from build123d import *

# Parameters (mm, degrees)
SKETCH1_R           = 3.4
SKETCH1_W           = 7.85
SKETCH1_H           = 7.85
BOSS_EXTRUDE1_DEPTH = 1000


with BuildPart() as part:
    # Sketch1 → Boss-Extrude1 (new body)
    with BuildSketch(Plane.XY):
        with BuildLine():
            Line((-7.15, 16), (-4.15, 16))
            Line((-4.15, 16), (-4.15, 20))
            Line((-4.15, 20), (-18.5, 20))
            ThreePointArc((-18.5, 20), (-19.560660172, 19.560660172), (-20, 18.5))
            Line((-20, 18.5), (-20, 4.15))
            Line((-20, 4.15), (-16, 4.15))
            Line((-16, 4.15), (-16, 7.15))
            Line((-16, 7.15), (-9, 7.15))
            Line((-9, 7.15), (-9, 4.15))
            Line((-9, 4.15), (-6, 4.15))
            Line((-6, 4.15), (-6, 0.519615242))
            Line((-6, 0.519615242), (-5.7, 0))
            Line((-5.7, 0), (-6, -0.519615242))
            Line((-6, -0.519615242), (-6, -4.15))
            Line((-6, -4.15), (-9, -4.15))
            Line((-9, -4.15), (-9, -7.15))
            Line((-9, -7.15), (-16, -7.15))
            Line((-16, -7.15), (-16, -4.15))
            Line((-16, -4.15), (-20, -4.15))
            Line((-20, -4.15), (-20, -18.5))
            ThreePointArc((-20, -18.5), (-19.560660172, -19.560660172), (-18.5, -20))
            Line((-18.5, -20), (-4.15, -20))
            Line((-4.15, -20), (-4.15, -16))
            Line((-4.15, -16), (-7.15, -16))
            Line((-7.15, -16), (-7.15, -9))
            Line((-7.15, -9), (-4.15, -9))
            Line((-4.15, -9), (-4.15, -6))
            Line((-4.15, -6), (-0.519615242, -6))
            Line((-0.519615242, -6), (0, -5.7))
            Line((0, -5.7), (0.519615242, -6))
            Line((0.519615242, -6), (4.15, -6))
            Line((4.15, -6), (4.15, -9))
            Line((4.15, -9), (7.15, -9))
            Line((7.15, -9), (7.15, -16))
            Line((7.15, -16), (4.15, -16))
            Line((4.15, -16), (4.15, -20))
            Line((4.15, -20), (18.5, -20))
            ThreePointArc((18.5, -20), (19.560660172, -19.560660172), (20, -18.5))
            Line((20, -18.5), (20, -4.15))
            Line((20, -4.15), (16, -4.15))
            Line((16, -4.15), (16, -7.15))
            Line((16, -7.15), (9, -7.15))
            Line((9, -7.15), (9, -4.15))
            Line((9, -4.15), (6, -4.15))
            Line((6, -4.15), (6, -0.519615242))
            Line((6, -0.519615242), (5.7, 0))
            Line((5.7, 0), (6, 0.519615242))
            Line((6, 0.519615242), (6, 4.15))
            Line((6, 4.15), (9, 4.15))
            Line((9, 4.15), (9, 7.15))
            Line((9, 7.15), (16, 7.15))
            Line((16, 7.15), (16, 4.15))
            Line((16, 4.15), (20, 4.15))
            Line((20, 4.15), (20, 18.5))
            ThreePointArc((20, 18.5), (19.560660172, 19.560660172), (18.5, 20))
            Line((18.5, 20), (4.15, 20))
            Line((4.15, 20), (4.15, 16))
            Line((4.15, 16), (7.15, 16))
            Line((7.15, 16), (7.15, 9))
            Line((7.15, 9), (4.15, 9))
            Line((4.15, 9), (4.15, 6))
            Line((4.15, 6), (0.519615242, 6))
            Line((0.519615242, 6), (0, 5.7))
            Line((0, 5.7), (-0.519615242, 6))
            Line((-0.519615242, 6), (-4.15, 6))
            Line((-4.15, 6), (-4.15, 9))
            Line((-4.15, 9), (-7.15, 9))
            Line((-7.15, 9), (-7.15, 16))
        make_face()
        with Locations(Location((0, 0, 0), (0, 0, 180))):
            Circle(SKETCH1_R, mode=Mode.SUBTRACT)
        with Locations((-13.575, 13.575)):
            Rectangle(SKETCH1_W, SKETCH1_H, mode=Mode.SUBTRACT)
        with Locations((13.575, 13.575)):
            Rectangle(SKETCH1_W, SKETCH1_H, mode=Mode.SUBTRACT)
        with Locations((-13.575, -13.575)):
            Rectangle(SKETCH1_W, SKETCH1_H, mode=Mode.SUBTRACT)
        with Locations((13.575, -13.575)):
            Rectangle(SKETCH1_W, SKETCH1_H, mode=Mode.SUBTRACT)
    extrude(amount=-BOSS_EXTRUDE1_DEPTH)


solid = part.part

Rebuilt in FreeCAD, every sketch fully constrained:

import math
import FreeCAD as App
import Part
import Sketcher

V = App.Vector
Q = App.Units.Quantity

doc = App.newDocument("Part")
body = doc.addObject("PartDesign::Body", "Body")

sketch1 = doc.addObject("Sketcher::SketchObject", "Sketch")
body.addObject(sketch1)
sketch1.AttachmentSupport = (doc.XY_Plane, [""])
sketch1.MapMode = "FlatFace"
sketch1.addGeometry(Part.LineSegment(V(-7.15, 16, 0), V(-4.15, 16, 0)), False)
sketch1.addGeometry(Part.LineSegment(V(-4.15, 16, 0), V(-4.15, 20, 0)), False)
sketch1.addGeometry(Part.LineSegment(V(-4.15, 20, 0), V(-18.5, 20, 0)), False)
sketch1.addGeometry(Part.ArcOfCircle(Part.Circle(V(-18.5, 18.5, 0), V(0, 0, 1), 1.5), math.radians(90), math.radians(180)), False)
sketch1.addGeometry(Part.LineSegment(V(-20, 18.5, 0), V(-20, 4.15, 0)), False)
sketch1.addGeometry(Part.LineSegment(V(-20, 4.15, 0), V(-16, 4.15, 0)), False)
sketch1.addGeometry(Part.LineSegment(V(-16, 4.15, 0), V(-16, 7.15, 0)), False)
sketch1.addGeometry(Part.LineSegment(V(-16, 7.15, 0), V(-9, 7.15, 0)), False)
sketch1.addGeometry(Part.LineSegment(V(-9, 7.15, 0), V(-9, 4.15, 0)), False)
sketch1.addGeometry(Part.LineSegment(V(-9, 4.15, 0), V(-6, 4.15, 0)), False)
sketch1.addGeometry(Part.LineSegment(V(-6, 4.15, 0), V(-6, 0.519615, 0)), False)
sketch1.addGeometry(Part.LineSegment(V(-6, 0.519615, 0), V(-5.7, 0, 0)), False)
sketch1.addGeometry(Part.LineSegment(V(-5.7, 0, 0), V(-6, -0.519615, 0)), False)
sketch1.addGeometry(Part.LineSegment(V(-6, -0.519615, 0), V(-6, -4.15, 0)), False)
sketch1.addGeometry(Part.LineSegment(V(-6, -4.15, 0), V(-9, -4.15, 0)), False)
sketch1.addGeometry(Part.LineSegment(V(-9, -4.15, 0), V(-9, -7.15, 0)), False)
sketch1.addGeometry(Part.LineSegment(V(-9, -7.15, 0), V(-16, -7.15, 0)), False)
sketch1.addGeometry(Part.LineSegment(V(-16, -7.15, 0), V(-16, -4.15, 0)), False)
sketch1.addGeometry(Part.LineSegment(V(-16, -4.15, 0), V(-20, -4.15, 0)), False)
sketch1.addGeometry(Part.LineSegment(V(-20, -4.15, 0), V(-20, -18.5, 0)), False)
sketch1.addGeometry(Part.ArcOfCircle(Part.Circle(V(-18.5, -18.5, 0), V(0, 0, 1), 1.5), math.radians(180), math.radians(270)), False)
sketch1.addGeometry(Part.LineSegment(V(-18.5, -20, 0), V(-4.15, -20, 0)), False)
sketch1.addGeometry(Part.LineSegment(V(-4.15, -20, 0), V(-4.15, -16, 0)), False)
sketch1.addGeometry(Part.LineSegment(V(-4.15, -16, 0), V(-7.15, -16, 0)), False)
sketch1.addGeometry(Part.LineSegment(V(-7.15, -16, 0), V(-7.15, -9, 0)), False)
sketch1.addGeometry(Part.LineSegment(V(-7.15, -9, 0), V(-4.15, -9, 0)), False)
sketch1.addGeometry(Part.LineSegment(V(-4.15, -9, 0), V(-4.15, -6, 0)), False)
sketch1.addGeometry(Part.LineSegment(V(-4.15, -6, 0), V(-0.519615, -6, 0)), False)
sketch1.addGeometry(Part.LineSegment(V(-0.519615, -6, 0), V(0, -5.7, 0)), False)
sketch1.addGeometry(Part.LineSegment(V(0, -5.7, 0), V(0.519615, -6, 0)), False)
sketch1.addGeometry(Part.LineSegment(V(0.519615, -6, 0), V(4.15, -6, 0)), False)
sketch1.addGeometry(Part.LineSegment(V(4.15, -6, 0), V(4.15, -9, 0)), False)
sketch1.addGeometry(Part.LineSegment(V(4.15, -9, 0), V(7.15, -9, 0)), False)
sketch1.addGeometry(Part.LineSegment(V(7.15, -9, 0), V(7.15, -16, 0)), False)
sketch1.addGeometry(Part.LineSegment(V(7.15, -16, 0), V(4.15, -16, 0)), False)
sketch1.addGeometry(Part.LineSegment(V(4.15, -16, 0), V(4.15, -20, 0)), False)
sketch1.addGeometry(Part.LineSegment(V(4.15, -20, 0), V(18.5, -20, 0)), False)
sketch1.addGeometry(Part.ArcOfCircle(Part.Circle(V(18.5, -18.5, 0), V(0, 0, 1), 1.5), math.radians(-90), math.radians(0)), False)
sketch1.addGeometry(Part.LineSegment(V(20, -18.5, 0), V(20, -4.15, 0)), False)
sketch1.addGeometry(Part.LineSegment(V(20, -4.15, 0), V(16, -4.15, 0)), False)
sketch1.addGeometry(Part.LineSegment(V(16, -4.15, 0), V(16, -7.15, 0)), False)
sketch1.addGeometry(Part.LineSegment(V(16, -7.15, 0), V(9, -7.15, 0)), False)
sketch1.addGeometry(Part.LineSegment(V(9, -7.15, 0), V(9, -4.15, 0)), False)
sketch1.addGeometry(Part.LineSegment(V(9, -4.15, 0), V(6, -4.15, 0)), False)
sketch1.addGeometry(Part.LineSegment(V(6, -4.15, 0), V(6, -0.519615, 0)), False)
sketch1.addGeometry(Part.LineSegment(V(6, -0.519615, 0), V(5.7, 0, 0)), False)
sketch1.addGeometry(Part.LineSegment(V(5.7, 0, 0), V(6, 0.519615, 0)), False)
sketch1.addGeometry(Part.LineSegment(V(6, 0.519615, 0), V(6, 4.15, 0)), False)
sketch1.addGeometry(Part.LineSegment(V(6, 4.15, 0), V(9, 4.15, 0)), False)
sketch1.addGeometry(Part.LineSegment(V(9, 4.15, 0), V(9, 7.15, 0)), False)
sketch1.addGeometry(Part.LineSegment(V(9, 7.15, 0), V(16, 7.15, 0)), False)
sketch1.addGeometry(Part.LineSegment(V(16, 7.15, 0), V(16, 4.15, 0)), False)
sketch1.addGeometry(Part.LineSegment(V(16, 4.15, 0), V(20, 4.15, 0)), False)
sketch1.addGeometry(Part.LineSegment(V(20, 4.15, 0), V(20, 18.5, 0)), False)
sketch1.addGeometry(Part.ArcOfCircle(Part.Circle(V(18.5, 18.5, 0), V(0, 0, 1), 1.5), math.radians(0), math.radians(90)), False)
sketch1.addGeometry(Part.LineSegment(V(18.5, 20, 0), V(4.15, 20, 0)), False)
sketch1.addGeometry(Part.LineSegment(V(4.15, 20, 0), V(4.15, 16, 0)), False)
sketch1.addGeometry(Part.LineSegment(V(4.15, 16, 0), V(7.15, 16, 0)), False)
sketch1.addGeometry(Part.LineSegment(V(7.15, 16, 0), V(7.15, 9, 0)), False)
sketch1.addGeometry(Part.LineSegment(V(7.15, 9, 0), V(4.15, 9, 0)), False)
sketch1.addGeometry(Part.LineSegment(V(4.15, 9, 0), V(4.15, 6, 0)), False)
sketch1.addGeometry(Part.LineSegment(V(4.15, 6, 0), V(0.519615, 6, 0)), False)
sketch1.addGeometry(Part.LineSegment(V(0.519615, 6, 0), V(0, 5.7, 0)), False)
sketch1.addGeometry(Part.LineSegment(V(0, 5.7, 0), V(-0.519615, 6, 0)), False)
sketch1.addGeometry(Part.LineSegment(V(-0.519615, 6, 0), V(-4.15, 6, 0)), False)
sketch1.addGeometry(Part.LineSegment(V(-4.15, 6, 0), V(-4.15, 9, 0)), False)
sketch1.addGeometry(Part.LineSegment(V(-4.15, 9, 0), V(-7.15, 9, 0)), False)
sketch1.addGeometry(Part.LineSegment(V(-7.15, 9, 0), V(-7.15, 16, 0)), False)
sketch1.addGeometry(Part.LineSegment(V(-9.65, -17.5, 0), V(-17.5, -17.5, 0)), False)
sketch1.addGeometry(Part.LineSegment(V(-17.5, -17.5, 0), V(-17.5, -9.65, 0)), False)
sketch1.addGeometry(Part.LineSegment(V(-17.5, -9.65, 0), V(-9.65, -9.65, 0)), False)
sketch1.addGeometry(Part.LineSegment(V(-9.65, -9.65, 0), V(-9.65, -17.5, 0)), False)
sketch1.addGeometry(Part.LineSegment(V(17.5, -17.5, 0), V(9.65, -17.5, 0)), False)
sketch1.addGeometry(Part.LineSegment(V(9.65, -17.5, 0), V(9.65, -9.65, 0)), False)
sketch1.addGeometry(Part.LineSegment(V(9.65, -9.65, 0), V(17.5, -9.65, 0)), False)
sketch1.addGeometry(Part.LineSegment(V(17.5, -9.65, 0), V(17.5, -17.5, 0)), False)
sketch1.addGeometry(Part.LineSegment(V(-9.65, 9.65, 0), V(-17.5, 9.65, 0)), False)
sketch1.addGeometry(Part.LineSegment(V(-17.5, 9.65, 0), V(-17.5, 17.5, 0)), False)
sketch1.addGeometry(Part.LineSegment(V(-17.5, 17.5, 0), V(-9.65, 17.5, 0)), False)
sketch1.addGeometry(Part.LineSegment(V(-9.65, 17.5, 0), V(-9.65, 9.65, 0)), False)
sketch1.addGeometry(Part.Circle(V(0, 0, 0), V(0, 0, 1), 3.4), False)
sketch1.addGeometry(Part.LineSegment(V(17.5, 9.65, 0), V(9.65, 9.65, 0)), False)
sketch1.addGeometry(Part.LineSegment(V(9.65, 9.65, 0), V(9.65, 17.5, 0)), False)
sketch1.addGeometry(Part.LineSegment(V(9.65, 17.5, 0), V(17.5, 17.5, 0)), False)
sketch1.addGeometry(Part.LineSegment(V(17.5, 17.5, 0), V(17.5, 9.65, 0)), False)
sketch1.addConstraint(Sketcher.Constraint("Coincident", 0, 2, 1, 1))
sketch1.addConstraint(Sketcher.Constraint("Coincident", 1, 2, 2, 1))
sketch1.addConstraint(Sketcher.Constraint("Tangent", 2, 2, 3, 1))
sketch1.addConstraint(Sketcher.Constraint("Tangent", 3, 2, 4, 1))
sketch1.addConstraint(Sketcher.Constraint("Coincident", 4, 2, 5, 1))
sketch1.addConstraint(Sketcher.Constraint("Coincident", 5, 2, 6, 1))
sketch1.addConstraint(Sketcher.Constraint("Coincident", 6, 2, 7, 1))
sketch1.addConstraint(Sketcher.Constraint("Coincident", 7, 2, 8, 1))
sketch1.addConstraint(Sketcher.Constraint("Coincident", 8, 2, 9, 1))
sketch1.addConstraint(Sketcher.Constraint("Coincident", 9, 2, 10, 1))
sketch1.addConstraint(Sketcher.Constraint("Coincident", 10, 2, 11, 1))
sketch1.addConstraint(Sketcher.Constraint("Coincident", 11, 2, 12, 1))
sketch1.addConstraint(Sketcher.Constraint("Coincident", 12, 2, 13, 1))
sketch1.addConstraint(Sketcher.Constraint("Coincident", 13, 2, 14, 1))
sketch1.addConstraint(Sketcher.Constraint("Coincident", 14, 2, 15, 1))
sketch1.addConstraint(Sketcher.Constraint("Coincident", 15, 2, 16, 1))
sketch1.addConstraint(Sketcher.Constraint("Coincident", 16, 2, 17, 1))
sketch1.addConstraint(Sketcher.Constraint("Coincident", 17, 2, 18, 1))
sketch1.addConstraint(Sketcher.Constraint("Coincident", 18, 2, 19, 1))
sketch1.addConstraint(Sketcher.Constraint("Tangent", 19, 2, 20, 1))
sketch1.addConstraint(Sketcher.Constraint("Tangent", 20, 2, 21, 1))
sketch1.addConstraint(Sketcher.Constraint("Coincident", 21, 2, 22, 1))
sketch1.addConstraint(Sketcher.Constraint("Coincident", 22, 2, 23, 1))
sketch1.addConstraint(Sketcher.Constraint("Coincident", 23, 2, 24, 1))
sketch1.addConstraint(Sketcher.Constraint("Coincident", 24, 2, 25, 1))
sketch1.addConstraint(Sketcher.Constraint("Coincident", 25, 2, 26, 1))
sketch1.addConstraint(Sketcher.Constraint("Coincident", 26, 2, 27, 1))
sketch1.addConstraint(Sketcher.Constraint("Coincident", 27, 2, 28, 1))
sketch1.addConstraint(Sketcher.Constraint("Coincident", 28, 2, 29, 1))
sketch1.addConstraint(Sketcher.Constraint("Coincident", 29, 2, 30, 1))
sketch1.addConstraint(Sketcher.Constraint("Coincident", 30, 2, 31, 1))
sketch1.addConstraint(Sketcher.Constraint("Coincident", 31, 2, 32, 1))
sketch1.addConstraint(Sketcher.Constraint("Coincident", 32, 2, 33, 1))
sketch1.addConstraint(Sketcher.Constraint("Coincident", 33, 2, 34, 1))
sketch1.addConstraint(Sketcher.Constraint("Coincident", 34, 2, 35, 1))
sketch1.addConstraint(Sketcher.Constraint("Coincident", 35, 2, 36, 1))
sketch1.addConstraint(Sketcher.Constraint("Tangent", 36, 2, 37, 1))
sketch1.addConstraint(Sketcher.Constraint("Tangent", 37, 2, 38, 1))
sketch1.addConstraint(Sketcher.Constraint("Coincident", 38, 2, 39, 1))
sketch1.addConstraint(Sketcher.Constraint("Coincident", 39, 2, 40, 1))
sketch1.addConstraint(Sketcher.Constraint("Coincident", 40, 2, 41, 1))
sketch1.addConstraint(Sketcher.Constraint("Coincident", 41, 2, 42, 1))
sketch1.addConstraint(Sketcher.Constraint("Coincident", 42, 2, 43, 1))
sketch1.addConstraint(Sketcher.Constraint("Coincident", 43, 2, 44, 1))
sketch1.addConstraint(Sketcher.Constraint("Coincident", 44, 2, 45, 1))
sketch1.addConstraint(Sketcher.Constraint("Coincident", 45, 2, 46, 1))
sketch1.addConstraint(Sketcher.Constraint("Coincident", 46, 2, 47, 1))
sketch1.addConstraint(Sketcher.Constraint("Coincident", 47, 2, 48, 1))
sketch1.addConstraint(Sketcher.Constraint("Coincident", 48, 2, 49, 1))
sketch1.addConstraint(Sketcher.Constraint("Coincident", 49, 2, 50, 1))
sketch1.addConstraint(Sketcher.Constraint("Coincident", 50, 2, 51, 1))
sketch1.addConstraint(Sketcher.Constraint("Coincident", 51, 2, 52, 1))
sketch1.addConstraint(Sketcher.Constraint("Coincident", 52, 2, 53, 1))
sketch1.addConstraint(Sketcher.Constraint("Tangent", 53, 2, 54, 1))
sketch1.addConstraint(Sketcher.Constraint("Tangent", 54, 2, 55, 1))
sketch1.addConstraint(Sketcher.Constraint("Coincident", 55, 2, 56, 1))
sketch1.addConstraint(Sketcher.Constraint("Coincident", 56, 2, 57, 1))
sketch1.addConstraint(Sketcher.Constraint("Coincident", 57, 2, 58, 1))
sketch1.addConstraint(Sketcher.Constraint("Coincident", 58, 2, 59, 1))
sketch1.addConstraint(Sketcher.Constraint("Coincident", 59, 2, 60, 1))
sketch1.addConstraint(Sketcher.Constraint("Coincident", 60, 2, 61, 1))
sketch1.addConstraint(Sketcher.Constraint("Coincident", 61, 2, 62, 1))
sketch1.addConstraint(Sketcher.Constraint("Coincident", 62, 2, 63, 1))
sketch1.addConstraint(Sketcher.Constraint("Coincident", 63, 2, 64, 1))
sketch1.addConstraint(Sketcher.Constraint("Coincident", 64, 2, 65, 1))
sketch1.addConstraint(Sketcher.Constraint("Coincident", 65, 2, 66, 1))
sketch1.addConstraint(Sketcher.Constraint("Coincident", 66, 2, 67, 1))
sketch1.addConstraint(Sketcher.Constraint("Coincident", 67, 2, 0, 1))
sketch1.addConstraint(Sketcher.Constraint("Coincident", 68, 2, 69, 1))
sketch1.addConstraint(Sketcher.Constraint("Coincident", 69, 2, 70, 1))
sketch1.addConstraint(Sketcher.Constraint("Coincident", 70, 2, 71, 1))
sketch1.addConstraint(Sketcher.Constraint("Coincident", 71, 2, 68, 1))
sketch1.addConstraint(Sketcher.Constraint("Coincident", 72, 2, 73, 1))
sketch1.addConstraint(Sketcher.Constraint("Coincident", 73, 2, 74, 1))
sketch1.addConstraint(Sketcher.Constraint("Coincident", 74, 2, 75, 1))
sketch1.addConstraint(Sketcher.Constraint("Coincident", 75, 2, 72, 1))
sketch1.addConstraint(Sketcher.Constraint("Coincident", 76, 2, 77, 1))
sketch1.addConstraint(Sketcher.Constraint("Coincident", 77, 2, 78, 1))
sketch1.addConstraint(Sketcher.Constraint("Coincident", 78, 2, 79, 1))
sketch1.addConstraint(Sketcher.Constraint("Coincident", 79, 2, 76, 1))
sketch1.addConstraint(Sketcher.Constraint("Coincident", 81, 2, 82, 1))
sketch1.addConstraint(Sketcher.Constraint("Coincident", 82, 2, 83, 1))
sketch1.addConstraint(Sketcher.Constraint("Coincident", 83, 2, 84, 1))
sketch1.addConstraint(Sketcher.Constraint("Coincident", 84, 2, 81, 1))
sketch1.addConstraint(Sketcher.Constraint("Horizontal", 0))
sketch1.addConstraint(Sketcher.Constraint("Vertical", 1))
sketch1.addConstraint(Sketcher.Constraint("Horizontal", 2))
sketch1.addConstraint(Sketcher.Constraint("Vertical", 4))
sketch1.addConstraint(Sketcher.Constraint("Horizontal", 5))
sketch1.addConstraint(Sketcher.Constraint("Vertical", 6))
sketch1.addConstraint(Sketcher.Constraint("Horizontal", 7))
sketch1.addConstraint(Sketcher.Constraint("Vertical", 8))
sketch1.addConstraint(Sketcher.Constraint("Horizontal", 9))
sketch1.addConstraint(Sketcher.Constraint("Vertical", 10))
sketch1.addConstraint(Sketcher.Constraint("Vertical", 13))
sketch1.addConstraint(Sketcher.Constraint("Horizontal", 14))
sketch1.addConstraint(Sketcher.Constraint("Vertical", 15))
sketch1.addConstraint(Sketcher.Constraint("Horizontal", 16))
sketch1.addConstraint(Sketcher.Constraint("Vertical", 17))
sketch1.addConstraint(Sketcher.Constraint("Horizontal", 18))
sketch1.addConstraint(Sketcher.Constraint("Vertical", 19))
sketch1.addConstraint(Sketcher.Constraint("Horizontal", 21))
sketch1.addConstraint(Sketcher.Constraint("Vertical", 22))
sketch1.addConstraint(Sketcher.Constraint("Horizontal", 23))
sketch1.addConstraint(Sketcher.Constraint("Vertical", 24))
sketch1.addConstraint(Sketcher.Constraint("Horizontal", 25))
sketch1.addConstraint(Sketcher.Constraint("Vertical", 26))
sketch1.addConstraint(Sketcher.Constraint("Horizontal", 27))
sketch1.addConstraint(Sketcher.Constraint("Horizontal", 30))
sketch1.addConstraint(Sketcher.Constraint("Vertical", 31))
sketch1.addConstraint(Sketcher.Constraint("Horizontal", 32))
sketch1.addConstraint(Sketcher.Constraint("Vertical", 33))
sketch1.addConstraint(Sketcher.Constraint("Horizontal", 34))
sketch1.addConstraint(Sketcher.Constraint("Vertical", 35))
sketch1.addConstraint(Sketcher.Constraint("Horizontal", 36))
sketch1.addConstraint(Sketcher.Constraint("Vertical", 38))
sketch1.addConstraint(Sketcher.Constraint("Horizontal", 39))
sketch1.addConstraint(Sketcher.Constraint("Vertical", 40))
sketch1.addConstraint(Sketcher.Constraint("Horizontal", 41))
sketch1.addConstraint(Sketcher.Constraint("Vertical", 42))
sketch1.addConstraint(Sketcher.Constraint("Horizontal", 43))
sketch1.addConstraint(Sketcher.Constraint("Vertical", 44))
sketch1.addConstraint(Sketcher.Constraint("Vertical", 47))
sketch1.addConstraint(Sketcher.Constraint("Horizontal", 48))
sketch1.addConstraint(Sketcher.Constraint("Vertical", 49))
sketch1.addConstraint(Sketcher.Constraint("Horizontal", 50))
sketch1.addConstraint(Sketcher.Constraint("Vertical", 51))
sketch1.addConstraint(Sketcher.Constraint("Horizontal", 52))
sketch1.addConstraint(Sketcher.Constraint("Vertical", 53))
sketch1.addConstraint(Sketcher.Constraint("Horizontal", 55))
sketch1.addConstraint(Sketcher.Constraint("Vertical", 56))
sketch1.addConstraint(Sketcher.Constraint("Horizontal", 57))
sketch1.addConstraint(Sketcher.Constraint("Vertical", 58))
sketch1.addConstraint(Sketcher.Constraint("Horizontal", 59))
sketch1.addConstraint(Sketcher.Constraint("Vertical", 60))
sketch1.addConstraint(Sketcher.Constraint("Horizontal", 61))
sketch1.addConstraint(Sketcher.Constraint("Horizontal", 64))
sketch1.addConstraint(Sketcher.Constraint("Vertical", 65))
sketch1.addConstraint(Sketcher.Constraint("Horizontal", 66))
sketch1.addConstraint(Sketcher.Constraint("Vertical", 67))
sketch1.addConstraint(Sketcher.Constraint("Horizontal", 68))
sketch1.addConstraint(Sketcher.Constraint("Vertical", 69))
sketch1.addConstraint(Sketcher.Constraint("Horizontal", 70))
sketch1.addConstraint(Sketcher.Constraint("Vertical", 71))
sketch1.addConstraint(Sketcher.Constraint("Horizontal", 72))
sketch1.addConstraint(Sketcher.Constraint("Vertical", 73))
sketch1.addConstraint(Sketcher.Constraint("Horizontal", 74))
sketch1.addConstraint(Sketcher.Constraint("Vertical", 75))
sketch1.addConstraint(Sketcher.Constraint("Horizontal", 76))
sketch1.addConstraint(Sketcher.Constraint("Vertical", 77))
sketch1.addConstraint(Sketcher.Constraint("Horizontal", 78))
sketch1.addConstraint(Sketcher.Constraint("Vertical", 79))
sketch1.addConstraint(Sketcher.Constraint("Horizontal", 81))
sketch1.addConstraint(Sketcher.Constraint("Vertical", 82))
sketch1.addConstraint(Sketcher.Constraint("Horizontal", 83))
sketch1.addConstraint(Sketcher.Constraint("Vertical", 84))
sketch1.addConstraint(Sketcher.Constraint("Coincident", 80, 3, -1, 1))
sketch1.addConstraint(Sketcher.Constraint("Equal", 3, 20))
sketch1.addConstraint(Sketcher.Constraint("Equal", 20, 37))
sketch1.addConstraint(Sketcher.Constraint("Equal", 37, 54))
sketch1.addConstraint(Sketcher.Constraint("Symmetric", 3, 3, 37, 3, -1, 1))
sketch1.addConstraint(Sketcher.Constraint("Symmetric", 20, 3, 54, 3, -1, 1))
sketch1.addConstraint(Sketcher.Constraint("Symmetric", 0, 2, 34, 2, -1, 1))
sketch1.addConstraint(Sketcher.Constraint("Symmetric", 5, 2, 39, 2, -1, 1))
sketch1.addConstraint(Sketcher.Constraint("Symmetric", 7, 2, 41, 2, -1, 1))
sketch1.addConstraint(Sketcher.Constraint("Symmetric", 9, 2, 43, 2, -1, 1))
sketch1.addConstraint(Sketcher.Constraint("Symmetric", 11, 2, 45, 2, -1, 1))
sketch1.addConstraint(Sketcher.Constraint("Symmetric", 12, 2, 46, 2, -1, 1))
sketch1.addConstraint(Sketcher.Constraint("Symmetric", 14, 2, 48, 2, -1, 1))
sketch1.addConstraint(Sketcher.Constraint("Symmetric", 16, 2, 50, 2, -1, 1))
sketch1.addConstraint(Sketcher.Constraint("Symmetric", 22, 2, 56, 2, -1, 1))
sketch1.addConstraint(Sketcher.Constraint("Symmetric", 24, 2, 58, 2, -1, 1))
sketch1.addConstraint(Sketcher.Constraint("Symmetric", 26, 2, 60, 2, -1, 1))
sketch1.addConstraint(Sketcher.Constraint("Symmetric", 28, 2, 62, 2, -1, 1))
sketch1.addConstraint(Sketcher.Constraint("Symmetric", 29, 2, 63, 2, -1, 1))
sketch1.addConstraint(Sketcher.Constraint("Symmetric", 31, 2, 65, 2, -1, 1))
sketch1.addConstraint(Sketcher.Constraint("Symmetric", 74, 2, 76, 2, -1, 1))
sketch1.addConstraint(Sketcher.Constraint("Symmetric", 72, 2, 78, 2, -1, 1))
sketch1.addConstraint(Sketcher.Constraint("Symmetric", 70, 2, 81, 2, -1, 1))
sketch1.addConstraint(Sketcher.Constraint("Symmetric", 68, 2, 83, 2, -1, 1))
sketch1.addConstraint(Sketcher.Constraint("Symmetric", 20, 3, 37, 3, -2))
sketch1.addConstraint(Sketcher.Constraint("Symmetric", 27, 2, 29, 2, -2))
sketch1.addConstraint(Sketcher.Constraint("Symmetric", 25, 2, 31, 2, -2))
sketch1.addConstraint(Sketcher.Constraint("Symmetric", 23, 2, 33, 2, -2))
sketch1.addConstraint(Sketcher.Constraint("Symmetric", 17, 2, 39, 2, -2))
sketch1.addConstraint(Sketcher.Constraint("Symmetric", 15, 2, 41, 2, -2))
sketch1.addConstraint(Sketcher.Constraint("Symmetric", 13, 2, 43, 2, -2))
sketch1.addConstraint(Sketcher.Constraint("Symmetric", 71, 2, 72, 2, -2))
sketch1.addConstraint(Sketcher.Constraint("Symmetric", 69, 2, 74, 2, -2))
sketch1.addConstraint(Sketcher.Constraint("PointOnObject", 11, 2, -1))
sketch1.addConstraint(Sketcher.Constraint("PointOnObject", 28, 2, -2))
sketch1.addConstraint(Sketcher.Constraint("Perpendicular", 11, 28))
sketch1.addConstraint(Sketcher.Constraint("Perpendicular", 12, 29))
sketch1.addConstraint(Sketcher.Constraint("Perpendicular", 28, 45))
sketch1.addConstraint(Sketcher.Constraint("Perpendicular", 45, 62))
sketch1.addConstraint(Sketcher.Constraint("Horizontal", 5, 2, 8, 2))
sketch1.addConstraint(Sketcher.Constraint("Horizontal", 48, 2, 51, 2))
sketch1.addConstraint(Sketcher.Constraint("Vertical", 1, 2, 21, 2))
sketch1.addConstraint(Sketcher.Constraint("Vertical", 22, 2, 25, 2))
sketch1.addConstraint(Sketcher.Constraint("Vertical", 24, 2, 66, 2))
sketch1.addConstraint(Sketcher.Constraint("Equal", 0, 9))
sketch1.addConstraint(Sketcher.Constraint("Equal", 52, 1))
sketch1.addConstraint(Sketcher.Constraint("Equal", 55, 4))
sketch1.addConstraint(Sketcher.Constraint("Equal", 66, 6))
sketch1.addConstraint(Sketcher.Constraint("Equal", 64, 10))
sketch1.addConstraint(Sketcher.Constraint("Equal", 50, 24))
sketch1.addConstraint(Sketcher.Constraint("Equal", 17, 26))
sketch1.addConstraint(Sketcher.Constraint("Equal", 83, 69))
sketch1.addConstraint(Sketcher.Constraint("Equal", 12, 28))
sketch1.addConstraint(Sketcher.Constraint("Diameter", 80, 6.8))
sketch1.addConstraint(Sketcher.Constraint("Radius", 3, 1.5))
sketch1.addConstraint(Sketcher.Constraint("DistanceX", 0, 1, 0, 2, 3.0))
sketch1.addConstraint(Sketcher.Constraint("DistanceX", 5, 1, 5, 2, 4.0))
sketch1.addConstraint(Sketcher.Constraint("DistanceX", 7, 1, 7, 2, 7.0))
sketch1.addConstraint(Sketcher.Constraint("Angle", 11, Q("-60 deg")))
sketch1.addConstraint(Sketcher.Constraint("DistanceY", -1, 1, 0, 2, 16.0))
sketch1.addConstraint(Sketcher.Constraint("Distance", 11, 0.6))
sketch1.addConstraint(Sketcher.Constraint("DistanceX", 2, 2, 2, 1, 14.35))
sketch1.addConstraint(Sketcher.Constraint("DistanceX", 68, 2, 68, 1, 7.85))
sketch1.addConstraint(Sketcher.Constraint("DistanceX", 68, 2, -1, 1, 17.5))
sketch1.addConstraint(Sketcher.Constraint("DistanceY", 68, 2, -1, 1, 17.5))
pad1 = doc.addObject("PartDesign::Pad", "Pad")
body.addObject(pad1)
pad1.Profile = sketch1
pad1.Length = 1000
pad1.Reversed = True

doc.recompute()
